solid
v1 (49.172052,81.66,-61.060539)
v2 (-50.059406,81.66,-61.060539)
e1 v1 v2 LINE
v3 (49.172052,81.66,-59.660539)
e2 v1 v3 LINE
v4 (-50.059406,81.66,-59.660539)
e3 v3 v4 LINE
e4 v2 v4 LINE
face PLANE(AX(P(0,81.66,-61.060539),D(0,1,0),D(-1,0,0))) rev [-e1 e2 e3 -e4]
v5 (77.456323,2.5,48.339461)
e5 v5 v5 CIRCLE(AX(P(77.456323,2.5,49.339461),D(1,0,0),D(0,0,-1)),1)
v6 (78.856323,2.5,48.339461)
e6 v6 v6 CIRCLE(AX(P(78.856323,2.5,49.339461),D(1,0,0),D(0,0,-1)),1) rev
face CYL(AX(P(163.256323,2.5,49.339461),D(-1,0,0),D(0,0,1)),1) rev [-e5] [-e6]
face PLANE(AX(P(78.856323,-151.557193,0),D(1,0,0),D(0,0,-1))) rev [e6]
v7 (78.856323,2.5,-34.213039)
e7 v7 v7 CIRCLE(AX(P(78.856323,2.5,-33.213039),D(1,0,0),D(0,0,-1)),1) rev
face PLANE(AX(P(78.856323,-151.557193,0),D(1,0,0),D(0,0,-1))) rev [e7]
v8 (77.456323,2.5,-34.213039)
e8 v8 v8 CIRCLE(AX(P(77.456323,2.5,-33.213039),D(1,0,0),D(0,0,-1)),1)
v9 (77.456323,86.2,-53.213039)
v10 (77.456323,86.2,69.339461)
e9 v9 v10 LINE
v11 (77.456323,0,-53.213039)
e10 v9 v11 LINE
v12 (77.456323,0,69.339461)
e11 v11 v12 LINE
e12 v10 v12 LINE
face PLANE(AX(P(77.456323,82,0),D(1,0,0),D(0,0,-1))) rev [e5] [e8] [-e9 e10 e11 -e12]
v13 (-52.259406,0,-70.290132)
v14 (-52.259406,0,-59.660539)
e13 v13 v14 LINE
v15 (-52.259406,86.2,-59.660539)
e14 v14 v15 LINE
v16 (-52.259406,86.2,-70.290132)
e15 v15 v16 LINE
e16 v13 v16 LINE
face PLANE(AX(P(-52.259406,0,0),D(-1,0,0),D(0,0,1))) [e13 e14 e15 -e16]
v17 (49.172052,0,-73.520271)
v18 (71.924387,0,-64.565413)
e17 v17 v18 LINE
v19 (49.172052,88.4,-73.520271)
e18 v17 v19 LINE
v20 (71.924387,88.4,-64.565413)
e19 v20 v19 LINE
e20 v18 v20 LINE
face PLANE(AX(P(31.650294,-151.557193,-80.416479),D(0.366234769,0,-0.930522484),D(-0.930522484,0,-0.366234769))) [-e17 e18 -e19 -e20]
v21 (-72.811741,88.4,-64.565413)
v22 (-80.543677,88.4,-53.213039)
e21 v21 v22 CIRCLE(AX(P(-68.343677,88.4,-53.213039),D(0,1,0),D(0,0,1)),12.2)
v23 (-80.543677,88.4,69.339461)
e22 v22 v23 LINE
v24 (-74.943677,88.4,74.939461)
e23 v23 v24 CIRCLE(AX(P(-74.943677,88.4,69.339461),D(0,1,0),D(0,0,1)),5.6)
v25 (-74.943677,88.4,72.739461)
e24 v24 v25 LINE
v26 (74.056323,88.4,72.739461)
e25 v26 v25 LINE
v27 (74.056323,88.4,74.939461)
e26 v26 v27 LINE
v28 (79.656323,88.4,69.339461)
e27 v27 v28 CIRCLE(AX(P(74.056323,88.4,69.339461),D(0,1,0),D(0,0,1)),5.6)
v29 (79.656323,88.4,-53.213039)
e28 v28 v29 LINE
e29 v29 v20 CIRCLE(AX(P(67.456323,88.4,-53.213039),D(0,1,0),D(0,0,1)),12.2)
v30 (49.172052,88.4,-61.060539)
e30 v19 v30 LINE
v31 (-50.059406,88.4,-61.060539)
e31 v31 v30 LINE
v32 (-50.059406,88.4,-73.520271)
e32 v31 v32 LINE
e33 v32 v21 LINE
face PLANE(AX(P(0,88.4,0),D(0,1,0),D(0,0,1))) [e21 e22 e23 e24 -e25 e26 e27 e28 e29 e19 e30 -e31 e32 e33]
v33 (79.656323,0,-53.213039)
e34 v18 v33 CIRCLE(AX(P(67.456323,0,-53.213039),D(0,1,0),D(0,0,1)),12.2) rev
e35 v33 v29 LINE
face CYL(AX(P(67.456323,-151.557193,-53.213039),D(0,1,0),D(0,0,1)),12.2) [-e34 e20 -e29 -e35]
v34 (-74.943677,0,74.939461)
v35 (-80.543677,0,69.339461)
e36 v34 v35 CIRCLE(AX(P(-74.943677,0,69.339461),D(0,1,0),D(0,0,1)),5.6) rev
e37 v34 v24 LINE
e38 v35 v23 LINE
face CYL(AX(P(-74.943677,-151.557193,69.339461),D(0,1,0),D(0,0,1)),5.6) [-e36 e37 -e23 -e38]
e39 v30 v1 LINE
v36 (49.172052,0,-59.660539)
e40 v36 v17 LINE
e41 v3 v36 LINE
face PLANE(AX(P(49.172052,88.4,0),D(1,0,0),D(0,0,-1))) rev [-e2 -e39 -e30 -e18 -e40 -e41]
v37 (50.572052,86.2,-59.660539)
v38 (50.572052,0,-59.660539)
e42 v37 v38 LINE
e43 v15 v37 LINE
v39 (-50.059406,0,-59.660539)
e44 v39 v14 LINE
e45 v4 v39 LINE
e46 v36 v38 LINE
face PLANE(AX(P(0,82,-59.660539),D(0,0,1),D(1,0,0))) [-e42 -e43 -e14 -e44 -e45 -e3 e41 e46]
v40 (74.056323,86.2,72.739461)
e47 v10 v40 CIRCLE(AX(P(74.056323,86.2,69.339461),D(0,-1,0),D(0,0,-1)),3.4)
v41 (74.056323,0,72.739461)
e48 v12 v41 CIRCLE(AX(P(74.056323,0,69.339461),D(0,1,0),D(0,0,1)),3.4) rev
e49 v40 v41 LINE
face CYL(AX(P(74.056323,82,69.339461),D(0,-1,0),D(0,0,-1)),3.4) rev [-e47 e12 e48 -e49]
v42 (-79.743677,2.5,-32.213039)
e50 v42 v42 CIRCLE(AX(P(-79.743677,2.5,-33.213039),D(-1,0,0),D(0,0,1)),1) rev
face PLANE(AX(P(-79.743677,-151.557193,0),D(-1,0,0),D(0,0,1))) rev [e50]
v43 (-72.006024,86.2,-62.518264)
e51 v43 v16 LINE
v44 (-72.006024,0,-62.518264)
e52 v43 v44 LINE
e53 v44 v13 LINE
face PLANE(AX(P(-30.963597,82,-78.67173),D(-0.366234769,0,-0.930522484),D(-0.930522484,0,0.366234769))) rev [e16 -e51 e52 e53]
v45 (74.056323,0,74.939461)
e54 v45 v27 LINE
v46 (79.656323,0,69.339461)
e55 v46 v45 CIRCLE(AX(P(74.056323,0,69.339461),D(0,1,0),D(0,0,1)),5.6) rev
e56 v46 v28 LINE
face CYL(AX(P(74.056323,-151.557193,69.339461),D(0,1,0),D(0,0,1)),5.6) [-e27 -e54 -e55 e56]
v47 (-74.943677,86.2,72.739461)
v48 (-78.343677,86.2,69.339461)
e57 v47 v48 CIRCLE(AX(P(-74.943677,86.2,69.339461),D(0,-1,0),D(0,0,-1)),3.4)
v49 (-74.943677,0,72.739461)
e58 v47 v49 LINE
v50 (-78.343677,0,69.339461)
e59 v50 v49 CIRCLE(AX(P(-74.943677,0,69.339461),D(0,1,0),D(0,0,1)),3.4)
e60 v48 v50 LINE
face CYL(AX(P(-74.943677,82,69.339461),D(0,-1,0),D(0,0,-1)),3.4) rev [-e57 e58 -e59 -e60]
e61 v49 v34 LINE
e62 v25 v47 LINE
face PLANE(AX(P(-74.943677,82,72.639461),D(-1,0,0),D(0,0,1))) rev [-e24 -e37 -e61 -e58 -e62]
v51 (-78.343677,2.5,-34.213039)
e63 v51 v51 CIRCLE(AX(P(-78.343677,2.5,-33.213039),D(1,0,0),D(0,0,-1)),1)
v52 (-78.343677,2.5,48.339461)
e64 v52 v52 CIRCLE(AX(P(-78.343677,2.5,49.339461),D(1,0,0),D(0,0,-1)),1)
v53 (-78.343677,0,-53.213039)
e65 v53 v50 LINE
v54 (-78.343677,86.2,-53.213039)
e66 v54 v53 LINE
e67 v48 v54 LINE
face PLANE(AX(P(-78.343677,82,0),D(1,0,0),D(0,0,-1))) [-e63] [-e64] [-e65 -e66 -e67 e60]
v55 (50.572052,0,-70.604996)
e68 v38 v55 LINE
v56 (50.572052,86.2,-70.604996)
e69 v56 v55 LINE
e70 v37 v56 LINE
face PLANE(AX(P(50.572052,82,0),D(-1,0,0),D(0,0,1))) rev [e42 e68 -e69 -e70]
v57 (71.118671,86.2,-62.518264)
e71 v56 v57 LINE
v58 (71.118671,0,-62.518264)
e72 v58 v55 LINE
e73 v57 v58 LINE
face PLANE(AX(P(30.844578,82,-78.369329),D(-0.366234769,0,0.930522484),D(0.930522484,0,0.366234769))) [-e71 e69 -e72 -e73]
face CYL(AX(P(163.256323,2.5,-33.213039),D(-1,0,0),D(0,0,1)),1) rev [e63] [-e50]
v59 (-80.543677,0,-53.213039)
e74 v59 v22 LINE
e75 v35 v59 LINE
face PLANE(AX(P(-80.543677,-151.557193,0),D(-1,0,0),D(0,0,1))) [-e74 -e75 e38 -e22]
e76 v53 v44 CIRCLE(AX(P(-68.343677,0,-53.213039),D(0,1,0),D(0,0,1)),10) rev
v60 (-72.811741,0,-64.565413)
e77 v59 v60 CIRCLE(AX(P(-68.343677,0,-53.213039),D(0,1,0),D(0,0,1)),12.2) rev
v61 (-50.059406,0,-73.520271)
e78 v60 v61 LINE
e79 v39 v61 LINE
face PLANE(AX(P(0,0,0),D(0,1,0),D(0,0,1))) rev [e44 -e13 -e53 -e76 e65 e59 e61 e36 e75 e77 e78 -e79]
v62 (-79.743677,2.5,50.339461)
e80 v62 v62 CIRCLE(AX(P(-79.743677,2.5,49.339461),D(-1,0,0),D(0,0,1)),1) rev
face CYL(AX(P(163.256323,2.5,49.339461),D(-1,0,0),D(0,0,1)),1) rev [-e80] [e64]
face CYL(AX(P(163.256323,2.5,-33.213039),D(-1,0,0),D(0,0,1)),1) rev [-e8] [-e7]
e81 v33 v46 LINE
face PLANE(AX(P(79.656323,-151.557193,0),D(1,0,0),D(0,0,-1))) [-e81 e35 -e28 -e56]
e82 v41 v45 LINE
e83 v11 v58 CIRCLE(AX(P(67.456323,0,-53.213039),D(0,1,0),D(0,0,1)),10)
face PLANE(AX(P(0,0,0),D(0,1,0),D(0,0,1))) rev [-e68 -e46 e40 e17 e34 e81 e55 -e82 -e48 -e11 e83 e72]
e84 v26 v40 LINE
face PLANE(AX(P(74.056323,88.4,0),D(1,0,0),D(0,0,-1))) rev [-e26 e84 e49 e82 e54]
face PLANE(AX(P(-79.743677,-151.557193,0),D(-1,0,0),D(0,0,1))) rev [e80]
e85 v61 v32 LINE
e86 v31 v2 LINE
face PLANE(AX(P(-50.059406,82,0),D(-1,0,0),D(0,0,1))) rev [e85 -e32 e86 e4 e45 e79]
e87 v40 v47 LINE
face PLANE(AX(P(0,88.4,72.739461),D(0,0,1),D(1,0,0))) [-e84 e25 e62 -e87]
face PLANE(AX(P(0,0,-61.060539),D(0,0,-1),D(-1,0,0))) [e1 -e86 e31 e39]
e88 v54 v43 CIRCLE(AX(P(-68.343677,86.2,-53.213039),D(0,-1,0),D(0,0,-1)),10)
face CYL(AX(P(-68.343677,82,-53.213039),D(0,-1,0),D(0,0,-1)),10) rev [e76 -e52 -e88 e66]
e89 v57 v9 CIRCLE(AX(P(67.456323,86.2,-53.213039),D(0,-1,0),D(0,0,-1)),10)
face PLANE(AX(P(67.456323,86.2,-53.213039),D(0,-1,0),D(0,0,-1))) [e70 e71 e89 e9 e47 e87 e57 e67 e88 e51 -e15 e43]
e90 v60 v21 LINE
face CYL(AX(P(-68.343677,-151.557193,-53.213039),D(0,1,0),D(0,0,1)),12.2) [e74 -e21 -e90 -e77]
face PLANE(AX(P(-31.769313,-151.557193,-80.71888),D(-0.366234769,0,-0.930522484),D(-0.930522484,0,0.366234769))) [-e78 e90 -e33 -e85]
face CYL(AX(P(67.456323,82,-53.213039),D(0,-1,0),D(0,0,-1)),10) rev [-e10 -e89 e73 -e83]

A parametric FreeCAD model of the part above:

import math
import FreeCAD as App
import Part
import Sketcher


def add_polygon(sketch, points):
    """Adds a closed chain of lines whose ends are joined by coincident constraints."""
    first, n = sketch.GeometryCount, len(points)
    for a, b in zip(points, points[1:] + points[:1]):
        sketch.addGeometry(Part.LineSegment(App.Vector(*a, 0), App.Vector(*b, 0)), False)
    for i in range(n):
        sketch.addConstraint(Sketcher.Constraint("Coincident", first + i, 2, first + (i + 1) % n, 1))

doc = App.newDocument("Part")
body = doc.addObject("PartDesign::Body", "Body")
body.AllowCompound = True

# Sketch on XZ plane
sketch1 = body.newObject("Sketcher::SketchObject", "Sketch")
sketch1.AttachmentSupport = (doc.getObject("XZ_Plane"), [""])
sketch1.MapMode = "FlatFace"
sketch1.addGeometry([
    Part.ArcOfCircle(Part.Circle(App.Vector(74.1, 69.3, 0), App.Vector(0, 0, 1), 4.8), math.radians(0), math.radians(90)),  # 0
    Part.LineSegment(App.Vector(78.9, 69.3, 0), App.Vector(78.9, -53.2, 0)),  # 1
    Part.ArcOfCircle(Part.Circle(App.Vector(67.5, -53.2, 0), App.Vector(0, 0, 1), 11.4), math.radians(-69), math.radians(0)),  # 2
    Part.LineSegment(App.Vector(71.6, -63.8, 0), App.Vector(49.2, -72.7, 0)),  # 3
    Part.LineSegment(App.Vector(49.2, -72.7, 0), App.Vector(49.2, -59.7, 0)),  # 4
    Part.LineSegment(App.Vector(49.2, -59.7, 0), App.Vector(50.6, -59.7, 0)),  # 5
    Part.LineSegment(App.Vector(50.6, -59.7, 0), App.Vector(50.6, -70.6, 0)),  # 6
    Part.LineSegment(App.Vector(50.6, -70.6, 0), App.Vector(71.1, -62.5, 0)),  # 7
    Part.ArcOfCircle(Part.Circle(App.Vector(67.5, -53.2, 0), App.Vector(0, 0, 1), 10), math.radians(-69), math.radians(0)),  # 8
    Part.LineSegment(App.Vector(77.5, -53.2, 0), App.Vector(77.5, 69.3, 0)),  # 9
    Part.ArcOfCircle(Part.Circle(App.Vector(74.1, 69.3, 0), App.Vector(0, 0, 1), 3.4), math.radians(0), math.radians(90)),  # 10
    Part.LineSegment(App.Vector(74.1, 72.7, 0), App.Vector(-74.9, 72.7, 0)),  # 11
    Part.ArcOfCircle(Part.Circle(App.Vector(-74.9, 69.3, 0), App.Vector(0, 0, 1), 3.4), math.radians(90), math.radians(180)),  # 12
    Part.LineSegment(App.Vector(-78.3, 69.3, 0), App.Vector(-78.3, -53.2, 0)),  # 13
    Part.ArcOfCircle(Part.Circle(App.Vector(-68.3, -53.2, 0), App.Vector(0, 0, 1), 10), math.radians(-180), math.radians(-111)),  # 14
    Part.LineSegment(App.Vector(-72, -62.5, 0), App.Vector(-51.5, -70.6, 0)),  # 15
    Part.LineSegment(App.Vector(-51.5, -70.6, 0), App.Vector(-51.5, -59.7, 0)),  # 16
    Part.LineSegment(App.Vector(-51.5, -59.7, 0), App.Vector(-50.1, -59.7, 0)),  # 17
    Part.LineSegment(App.Vector(-50.1, -59.7, 0), App.Vector(-50.1, -72.7, 0)),  # 18
    Part.LineSegment(App.Vector(-50.1, -72.7, 0), App.Vector(-72.5, -63.8, 0)),  # 19
    Part.ArcOfCircle(Part.Circle(App.Vector(-68.3, -53.2, 0), App.Vector(0, 0, 1), 11.4), math.radians(-180), math.radians(-111)),  # 20
    Part.LineSegment(App.Vector(-79.7, -53.2, 0), App.Vector(-79.7, 69.3, 0)),  # 21
    Part.ArcOfCircle(Part.Circle(App.Vector(-74.9, 69.3, 0), App.Vector(0, 0, 1), 4.8), math.radians(90), math.radians(180)),  # 22
    Part.LineSegment(App.Vector(-74.9, 74.1, 0), App.Vector(74.1, 74.1, 0)),  # 23
], False)
sketch1.addConstraint([
    Sketcher.Constraint("Tangent", 0, 1, 1, 1),
    Sketcher.Constraint("Tangent", 1, 2, 2, 2),
    Sketcher.Constraint("Tangent", 2, 1, 3, 1),
    Sketcher.Constraint("Coincident", 3, 2, 4, 1),
    Sketcher.Constraint("Coincident", 4, 2, 5, 1),
    Sketcher.Constraint("Coincident", 5, 2, 6, 1),
    Sketcher.Constraint("Coincident", 6, 2, 7, 1),
    Sketcher.Constraint("Tangent", 7, 2, 8, 1),
    Sketcher.Constraint("Tangent", 8, 2, 9, 1),
    Sketcher.Constraint("Tangent", 9, 2, 10, 1),
    Sketcher.Constraint("Tangent", 10, 2, 11, 1),
    Sketcher.Constraint("Tangent", 11, 2, 12, 1),
    Sketcher.Constraint("Tangent", 12, 2, 13, 1),
    Sketcher.Constraint("Tangent", 13, 2, 14, 1),
    Sketcher.Constraint("Tangent", 14, 2, 15, 1),
    Sketcher.Constraint("Coincident", 15, 2, 16, 1),
    Sketcher.Constraint("Coincident", 16, 2, 17, 1),
    Sketcher.Constraint("Coincident", 17, 2, 18, 1),
    Sketcher.Constraint("Coincident", 18, 2, 19, 1),
    Sketcher.Constraint("Tangent", 19, 2, 20, 2),
    Sketcher.Constraint("Tangent", 20, 1, 21, 1),
    Sketcher.Constraint("Tangent", 21, 2, 22, 2),
    Sketcher.Constraint("Tangent", 22, 1, 23, 1),
    Sketcher.Constraint("Tangent", 23, 2, 0, 2),
    Sketcher.Constraint("Vertical", 1),
    Sketcher.Constraint("Vertical", 4),
    Sketcher.Constraint("Horizontal", 5),
    Sketcher.Constraint("Vertical", 6),
    Sketcher.Constraint("Vertical", 9),
    Sketcher.Constraint("Horizontal", 11),
    Sketcher.Constraint("Vertical", 13),
    Sketcher.Constraint("Vertical", 16),
    Sketcher.Constraint("Horizontal", 17),
    Sketcher.Constraint("Vertical", 18),
    Sketcher.Constraint("Vertical", 21),
    Sketcher.Constraint("Horizontal", 23),
    Sketcher.Constraint("Coincident", 8, 3, 2, 3),
    Sketcher.Constraint("Coincident", 10, 3, 0, 3),
    Sketcher.Constraint("Coincident", 20, 3, 14, 3),
    Sketcher.Constraint("Coincident", 22, 3, 12, 3),
    Sketcher.Constraint("Equal", 10, 12),
    Sketcher.Constraint("Equal", 8, 14),
    Sketcher.Constraint("Parallel", 3, 7),
    Sketcher.Constraint("Parallel", 15, 19),
    Sketcher.Constraint("Horizontal", 8, 3, 14, 3),
    Sketcher.Constraint("Horizontal", 7, 2, 14, 2),
    Sketcher.Constraint("Horizontal", 6, 2, 15, 2),
    Sketcher.Constraint("Horizontal", 5, 2, 16, 2),
    Sketcher.Constraint("Horizontal", 3, 2, 18, 2),
    Sketcher.Constraint("Radius", 8, 10.0),
    Sketcher.Constraint("Radius", 0, 4.8),
    Sketcher.Constraint("Radius", 2, 11.4),
    Sketcher.Constraint("DistanceX", 11, 2, 11, 1, 149.0),
    Sketcher.Constraint("DistanceY", 4, 1, 4, 2, 13.0),
    Sketcher.Constraint("DistanceX", 5, 1, 5, 2, 1.4),
    Sketcher.Constraint("DistanceY", 1, 2, 1, 1, 122.5525),
    Sketcher.Constraint("DistanceY", 6, 2, 2, 1, 6.784001),
    Sketcher.Constraint("DistanceX", -1, 1, 2, 1, 71.6314),
    Sketcher.Constraint("DistanceY", 3, 2, 8, 3, 19.4475),
    Sketcher.Constraint("DistanceY", -1, 1, 0, 3, 69.339461),
])
pad1 = body.newObject("PartDesign::Pad", "Pad")
pad1.Profile = sketch1
pad1.Length = 82
pad1.Reversed = True

# Sketch on XZ plane
sketch2 = body.newObject("Sketcher::SketchObject", "Sketch001")
sketch2.AttachmentSupport = (doc.getObject("XZ_Plane"), [""])
sketch2.MapMode = "FlatFace"
sketch2.AttachmentOffset = App.Placement(App.Vector(0, 0, -82), App.Rotation())
sketch2.addGeometry([
    Part.LineSegment(App.Vector(50.6, -70.6, 0), App.Vector(50.6, -59.7, 0)),  # 0
    Part.LineSegment(App.Vector(50.6, -59.7, 0), App.Vector(-51.5, -59.7, 0)),  # 1
    Part.LineSegment(App.Vector(-51.5, -59.7, 0), App.Vector(-51.5, -70.6, 0)),  # 2
    Part.LineSegment(App.Vector(-51.5, -70.6, 0), App.Vector(-72, -62.5, 0)),  # 3
    Part.ArcOfCircle(Part.Circle(App.Vector(-68.3, -53.2, 0), App.Vector(0, 0, 1), 10), math.radians(-180), math.radians(-111)),  # 4
    Part.LineSegment(App.Vector(-78.3, -53.2, 0), App.Vector(-78.3, 69.3, 0)),  # 5
    Part.ArcOfCircle(Part.Circle(App.Vector(-74.9, 69.3, 0), App.Vector(0, 0, 1), 3.4), math.radians(90), math.radians(180)),  # 6
    Part.LineSegment(App.Vector(-74.9, 72.7, 0), App.Vector(74.1, 72.7, 0)),  # 7
    Part.ArcOfCircle(Part.Circle(App.Vector(74.1, 69.3, 0), App.Vector(0, 0, 1), 3.4), math.radians(0), math.radians(90)),  # 8
    Part.LineSegment(App.Vector(77.5, 69.3, 0), App.Vector(77.5, -53.2, 0)),  # 9
    Part.ArcOfCircle(Part.Circle(App.Vector(67.5, -53.2, 0), App.Vector(0, 0, 1), 10), math.radians(-69), math.radians(0)),  # 10
    Part.LineSegment(App.Vector(71.1, -62.5, 0), App.Vector(50.6, -70.6, 0)),  # 11
], False)
sketch2.addConstraint([
    Sketcher.Constraint("Coincident", 0, 2, 1, 1),
    Sketcher.Constraint("Coincident", 1, 2, 2, 1),
    Sketcher.Constraint("Coincident", 2, 2, 3, 1),
    Sketcher.Constraint("Tangent", 3, 2, 4, 2),
    Sketcher.Constraint("Tangent", 4, 1, 5, 1),
    Sketcher.Constraint("Tangent", 5, 2, 6, 2),
    Sketcher.Constraint("Tangent", 6, 1, 7, 1),
    Sketcher.Constraint("Tangent", 7, 2, 8, 2),
    Sketcher.Constraint("Tangent", 8, 1, 9, 1),
    Sketcher.Constraint("Tangent", 9, 2, 10, 2),
    Sketcher.Constraint("Tangent", 10, 1, 11, 1),
    Sketcher.Constraint("Coincident", 11, 2, 0, 1),
    Sketcher.Constraint("Vertical", 0),
    Sketcher.Constraint("Horizontal", 1),
    Sketcher.Constraint("Vertical", 2),
    Sketcher.Constraint("Vertical", 5),
    Sketcher.Constraint("Horizontal", 7),
    Sketcher.Constraint("Vertical", 9),
    Sketcher.Constraint("Equal", 6, 8),
    Sketcher.Constraint("Equal", 4, 10),
    Sketcher.Constraint("Horizontal", 4, 3, 10, 3),
    Sketcher.Constraint("Horizontal", 3, 2, 10, 1),
    Sketcher.Constraint("Horizontal", 2, 2, 11, 2),
    Sketcher.Constraint("Radius", 4, 10.0),
    Sketcher.Constraint("Radius", 6, 3.4),
    Sketcher.Constraint("DistanceX", 7, 1, 7, 2, 149.0),
    Sketcher.Constraint("DistanceY", 0, 2, 8, 3, 129.0),
    Sketcher.Constraint("DistanceY", 5, 1, 5, 2, 122.5525),
    Sketcher.Constraint("DistanceX", 1, 2, 1, 1, 102.031458),
    Sketcher.Constraint("DistanceY", 0, 1, 0, 2, 10.944457),
    Sketcher.Constraint("DistanceY", 4, 3, -1, 1, 53.213039),
    Sketcher.Constraint("DistanceX", -1, 1, 0, 2, 50.572052),
])
pad2 = body.newObject("PartDesign::Pad", "Pad001")
pad2.Profile = sketch2
pad2.Length = 1.5

# Sketch on XY plane
sketch3 = body.newObject("Sketcher::SketchObject", "Sketch002")
sketch3.AttachmentSupport = (doc.getObject("XY_Plane"), [""])
sketch3.MapMode = "FlatFace"
sketch3.AttachmentOffset = App.Placement(App.Vector(0, 0, 74.139461), App.Rotation())
add_polygon(sketch3, [(-75, 82), (-75, 0), (74, 0), (74, 82)])  # lines 0-3
sketch3.addConstraint([
    Sketcher.Constraint("Vertical", 0),
    Sketcher.Constraint("Horizontal", 1),
    Sketcher.Constraint("Vertical", 2),
    Sketcher.Constraint("Horizontal", 3),
    Sketcher.Constraint("PointOnObject", 0, 2, -1),
    Sketcher.Constraint("DistanceX", 1, 1, 1, 2, 149.0),
    Sketcher.Constraint("DistanceY", 0, 2, 0, 1, 82.0),
    Sketcher.Constraint("DistanceX", 0, 2, -1, 1, 74.943677),
])
pocket1 = body.newObject("PartDesign::Pocket", "Pocket")
pocket1.Profile = sketch3
pocket1.Length = 1.5

# Sketch on XZ plane
sketch4 = body.newObject("Sketcher::SketchObject", "Sketch003")
sketch4.AttachmentSupport = (doc.getObject("XZ_Plane"), [""])
sketch4.MapMode = "FlatFace"
sketch4.AttachmentOffset = App.Placement(App.Vector(0, 0, -82), App.Rotation())
add_polygon(sketch4, [(-50.06, -59.66), (-50.06, -59.46), (49.17, -59.46), (49.17, -59.66)])  # lines 0-3
sketch4.addConstraint([
    Sketcher.Constraint("Vertical", 0),
    Sketcher.Constraint("Horizontal", 1),
    Sketcher.Constraint("Vertical", 2),
    Sketcher.Constraint("Horizontal", 3),
    Sketcher.Constraint("DistanceY", 0, 1, 0, 2, 0.2),
    Sketcher.Constraint("DistanceX", 1, 1, 1, 2, 99.231458),
    Sketcher.Constraint("DistanceY", 0, 2, -1, 1, 59.460539),
    Sketcher.Constraint("DistanceX", -1, 1, 1, 2, 49.172052),
])
pocket2 = body.newObject("PartDesign::Pocket", "Pocket001")
pocket2.Profile = sketch4
pocket2.Length = 18
pocket2.Reversed = True

# Sketch on YZ plane
sketch5 = body.newObject("Sketcher::SketchObject", "Sketch004")
sketch5.AttachmentSupport = (doc.getObject("YZ_Plane"), [""])
sketch5.MapMode = "FlatFace"
sketch5.AttachmentOffset = App.Placement(App.Vector(0, 0, -79.743677), App.Rotation())
sketch5.addGeometry([
    Part.Circle(App.Vector(2.5, -33.2, 0), App.Vector(0, 0, 1), 1),
    Part.Circle(App.Vector(2.5, 49.3, 0), App.Vector(0, 0, 1), 1),
], False)
sketch5.addConstraint([
    Sketcher.Constraint("Equal", 0, 1),
    Sketcher.Constraint("Vertical", 0, 3, 1, 3),
    Sketcher.Constraint("Diameter", 0, 2.0),
    Sketcher.Constraint("DistanceX", -1, 1, 0, 3, 2.5),
    Sketcher.Constraint("DistanceY", 0, 3, 1, 3, 82.5525),
    Sketcher.Constraint("DistanceY", 0, 3, -1, 1, 33.213039),
])
pocket3 = body.newObject("PartDesign::Pocket", "Pocket002")
pocket3.Profile = sketch5
pocket3.Length = 243
pocket3.Reversed = True

# Sketch on XZ plane
sketch6 = body.newObject("Sketcher::SketchObject", "Sketch005")
sketch6.AttachmentSupport = (doc.getObject("XZ_Plane"), [""])
sketch6.MapMode = "FlatFace"
sketch6.AttachmentOffset = App.Placement(App.Vector(0, 0, -80.5), App.Rotation())
sketch6.addGeometry([
    Part.LineSegment(App.Vector(-50.06, -59.46, 0), App.Vector(49.17, -59.46, 0)),  # 0
    Part.LineSegment(App.Vector(49.17, -59.46, 0), App.Vector(49.17, -59.66, 0)),  # 1
    Part.LineSegment(App.Vector(49.17, -59.66, 0), App.Vector(50.57, -59.66, 0)),  # 2
    Part.LineSegment(App.Vector(50.57, -59.66, 0), App.Vector(50.57, -70.6, 0)),  # 3
    Part.LineSegment(App.Vector(50.57, -70.6, 0), App.Vector(71.12, -62.52, 0)),  # 4
    Part.ArcOfCircle(Part.Circle(App.Vector(67.46, -53.21, 0), App.Vector(0, 0, 1), 10), math.radians(-69), math.radians(0)),  # 5
    Part.LineSegment(App.Vector(77.46, -53.21, 0), App.Vector(77.46, 69.34, 0)),  # 6
    Part.ArcOfCircle(Part.Circle(App.Vector(74.06, 69.34, 0), App.Vector(0, 0, 1), 3.4), math.radians(0), math.radians(90)),  # 7
    Part.LineSegment(App.Vector(74.06, 72.74, 0), App.Vector(74.06, 72.64, 0)),  # 8
    Part.LineSegment(App.Vector(74.06, 72.64, 0), App.Vector(-74.94, 72.64, 0)),  # 9
    Part.LineSegment(App.Vector(-74.94, 72.64, 0), App.Vector(-74.94, 72.74, 0)),  # 10
    Part.ArcOfCircle(Part.Circle(App.Vector(-74.94, 69.34, 0), App.Vector(0, 0, 1), 3.4), math.radians(90), math.radians(180)),  # 11
    Part.LineSegment(App.Vector(-78.34, 69.34, 0), App.Vector(-78.34, -53.21, 0)),  # 12
    Part.ArcOfCircle(Part.Circle(App.Vector(-68.34, -53.21, 0), App.Vector(0, 0, 1), 10), math.radians(-180), math.radians(-111)),  # 13
    Part.LineSegment(App.Vector(-72.01, -62.52, 0), App.Vector(-51.46, -70.6, 0)),  # 14
    Part.LineSegment(App.Vector(-51.46, -70.6, 0), App.Vector(-51.46, -59.66, 0)),  # 15
    Part.LineSegment(App.Vector(-51.46, -59.66, 0), App.Vector(-50.06, -59.66, 0)),  # 16
    Part.LineSegment(App.Vector(-50.06, -59.66, 0), App.Vector(-50.06, -59.46, 0)),  # 17
], False)
sketch6.addConstraint([
    Sketcher.Constraint("Coincident", 0, 2, 1, 1),
    Sketcher.Constraint("Coincident", 1, 2, 2, 1),
    Sketcher.Constraint("Coincident", 2, 2, 3, 1),
    Sketcher.Constraint("Coincident", 3, 2, 4, 1),
    Sketcher.Constraint("Tangent", 4, 2, 5, 1),
    Sketcher.Constraint("Tangent", 5, 2, 6, 1),
    Sketcher.Constraint("Tangent", 6, 2, 7, 1),
    Sketcher.Constraint("Coincident", 7, 2, 8, 1),
    Sketcher.Constraint("Coincident", 8, 2, 9, 1),
    Sketcher.Constraint("Coincident", 9, 2, 10, 1),
    Sketcher.Constraint("Coincident", 10, 2, 11, 1),
    Sketcher.Constraint("Tangent", 11, 2, 12, 1),
    Sketcher.Constraint("Tangent", 12, 2, 13, 1),
    Sketcher.Constraint("Tangent", 13, 2, 14, 1),
    Sketcher.Constraint("Coincident", 14, 2, 15, 1),
    Sketcher.Constraint("Coincident", 15, 2, 16, 1),
    Sketcher.Constraint("Coincident", 16, 2, 17, 1),
    Sketcher.Constraint("Coincident", 17, 2, 0, 1),
    Sketcher.Constraint("Horizontal", 0),
    Sketcher.Constraint("Vertical", 1),
    Sketcher.Constraint("Horizontal", 2),
    Sketcher.Constraint("Vertical", 3),
    Sketcher.Constraint("Vertical", 6),
    Sketcher.Constraint("Vertical", 8),
    Sketcher.Constraint("Horizontal", 9),
    Sketcher.Constraint("Vertical", 10),
    Sketcher.Constraint("Vertical", 12),
    Sketcher.Constraint("Vertical", 15),
    Sketcher.Constraint("Horizontal", 16),
    Sketcher.Constraint("Vertical", 17),
    Sketcher.Constraint("Equal", 7, 11),
    Sketcher.Constraint("Equal", 5, 13),
    Sketcher.Constraint("Horizontal", 7, 3, 11, 3),
    Sketcher.Constraint("Horizontal", 5, 3, 13, 3),
    Sketcher.Constraint("Horizontal", 4, 2, 13, 2),
    Sketcher.Constraint("Horizontal", 3, 2, 14, 2),
    Sketcher.Constraint("Horizontal", 2, 2, 15, 2),
    Sketcher.Constraint("Vertical", 11, 3, 9, 2),
    Sketcher.Constraint("Equal", 2, 16),
    Sketcher.Constraint("Radius", 5, 10.0),
    Sketcher.Constraint("Radius", 7, 3.4),
    Sketcher.Constraint("DistanceX", 9, 2, 9, 1, 149.0),
    Sketcher.Constraint("DistanceX", 2, 1, 2, 2, 1.4),
    Sketcher.Constraint("DistanceY", 1, 2, 1, 1, 0.2),
    Sketcher.Constraint("DistanceY", 8, 2, 8, 1, 0.1),
    Sketcher.Constraint("DistanceX", 11, 3, 7, 3, 149.0),
    Sketcher.Constraint("DistanceY", 1, 2, 7, 3, 129.0),
    Sketcher.Constraint("DistanceY", 6, 1, 6, 2, 122.5525),
    Sketcher.Constraint("DistanceX", 0, 1, 0, 2, 99.231458),
    Sketcher.Constraint("DistanceY", 3, 2, 3, 1, 10.944457),
    Sketcher.Constraint("DistanceY", 5, 3, -1, 1, 53.213039),
    Sketcher.Constraint("DistanceX", -1, 1, 0, 2, 49.172052),
])
pocket4 = body.newObject("PartDesign::Pocket", "Pocket003")
pocket4.Profile = sketch6
pocket4.Length = 16.4

# Sketch on XZ plane
sketch7 = body.newObject("Sketcher::SketchObject", "Sketch006")
sketch7.AttachmentSupport = (doc.getObject("XZ_Plane"), [""])
sketch7.MapMode = "FlatFace"
sketch7.AttachmentOffset = App.Placement(App.Vector(0, 0, -82), App.Rotation())
sketch7.addGeometry([
    Part.LineSegment(App.Vector(74.1, 72.7, 0), App.Vector(74.1, 74.1, 0)),  # 0
    Part.ArcOfCircle(Part.Circle(App.Vector(74.1, 69.3, 0), App.Vector(0, 0, 1), 4.8), math.radians(0), math.radians(90)),  # 1
    Part.LineSegment(App.Vector(78.9, 69.3, 0), App.Vector(78.9, -53.2, 0)),  # 2
    Part.ArcOfCircle(Part.Circle(App.Vector(67.5, -53.2, 0), App.Vector(0, 0, 1), 11.4), math.radians(-69), math.radians(0)),  # 3
    Part.LineSegment(App.Vector(71.6, -63.8, 0), App.Vector(49.2, -72.7, 0)),  # 4
    Part.LineSegment(App.Vector(49.2, -72.7, 0), App.Vector(49.2, -59.7, 0)),  # 5
    Part.LineSegment(App.Vector(49.2, -59.7, 0), App.Vector(50.6, -59.7, 0)),  # 6
    Part.LineSegment(App.Vector(50.6, -59.7, 0), App.Vector(50.6, -70.6, 0)),  # 7
    Part.LineSegment(App.Vector(50.6, -70.6, 0), App.Vector(71.1, -62.5, 0)),  # 8
    Part.ArcOfCircle(Part.Circle(App.Vector(67.5, -53.2, 0), App.Vector(0, 0, 1), 10), math.radians(-69), math.radians(0)),  # 9
    Part.LineSegment(App.Vector(77.5, -53.2, 0), App.Vector(77.5, 69.3, 0)),  # 10
    Part.ArcOfCircle(Part.Circle(App.Vector(74.1, 69.3, 0), App.Vector(0, 0, 1), 3.4), math.radians(0), math.radians(90)),  # 11
    Part.LineSegment(App.Vector(-51.5, -59.7, 0), App.Vector(-50.1, -59.7, 0)),  # 12
    Part.LineSegment(App.Vector(-50.1, -59.7, 0), App.Vector(-50.1, -72.7, 0)),  # 13
    Part.LineSegment(App.Vector(-50.1, -72.7, 0), App.Vector(-72.5, -63.8, 0)),  # 14
    Part.ArcOfCircle(Part.Circle(App.Vector(-68.3, -53.2, 0), App.Vector(0, 0, 1), 11.4), math.radians(-180), math.radians(-111)),  # 15
    Part.LineSegment(App.Vector(-79.7, -53.2, 0), App.Vector(-79.7, 69.3, 0)),  # 16
    Part.ArcOfCircle(Part.Circle(App.Vector(-74.9, 69.3, 0), App.Vector(0, 0, 1), 4.8), math.radians(90), math.radians(180)),  # 17
    Part.LineSegment(App.Vector(-74.9, 74.1, 0), App.Vector(-74.9, 72.7, 0)),  # 18
    Part.ArcOfCircle(Part.Circle(App.Vector(-74.9, 69.3, 0), App.Vector(0, 0, 1), 3.4), math.radians(90), math.radians(180)),  # 19
    Part.LineSegment(App.Vector(-78.3, 69.3, 0), App.Vector(-78.3, -53.2, 0)),  # 20
    Part.ArcOfCircle(Part.Circle(App.Vector(-68.3, -53.2, 0), App.Vector(0, 0, 1), 10), math.radians(-180), math.radians(-111)),  # 21
    Part.LineSegment(App.Vector(-72, -62.5, 0), App.Vector(-51.5, -70.6, 0)),  # 22
    Part.LineSegment(App.Vector(-51.5, -70.6, 0), App.Vector(-51.5, -59.7, 0)),  # 23
], False)
sketch7.addConstraint([
    Sketcher.Constraint("Coincident", 0, 2, 1, 2),
    Sketcher.Constraint("Tangent", 1, 1, 2, 1),
    Sketcher.Constraint("Tangent", 2, 2, 3, 2),
    Sketcher.Constraint("Tangent", 3, 1, 4, 1),
    Sketcher.Constraint("Coincident", 4, 2, 5, 1),
    Sketcher.Constraint("Coincident", 5, 2, 6, 1),
    Sketcher.Constraint("Coincident", 6, 2, 7, 1),
    Sketcher.Constraint("Coincident", 7, 2, 8, 1),
    Sketcher.Constraint("Tangent", 8, 2, 9, 1),
    Sketcher.Constraint("Tangent", 9, 2, 10, 1),
    Sketcher.Constraint("Tangent", 10, 2, 11, 1),
    Sketcher.Constraint("Coincident", 11, 2, 0, 1),
    Sketcher.Constraint("Coincident", 12, 2, 13, 1),
    Sketcher.Constraint("Coincident", 13, 2, 14, 1),
    Sketcher.Constraint("Tangent", 14, 2, 15, 2),
    Sketcher.Constraint("Tangent", 15, 1, 16, 1),
    Sketcher.Constraint("Tangent", 16, 2, 17, 2),
    Sketcher.Constraint("Coincident", 17, 1, 18, 1),
    Sketcher.Constraint("Coincident", 18, 2, 19, 1),
    Sketcher.Constraint("Tangent", 19, 2, 20, 1),
    Sketcher.Constraint("Tangent", 20, 2, 21, 1),
    Sketcher.Constraint("Tangent", 21, 2, 22, 1),
    Sketcher.Constraint("Coincident", 22, 2, 23, 1),
    Sketcher.Constraint("Coincident", 23, 2, 12, 1),
    Sketcher.Constraint("Vertical", 0),
    Sketcher.Constraint("Vertical", 2),
    Sketcher.Constraint("Vertical", 5),
    Sketcher.Constraint("Horizontal", 6),
    Sketcher.Constraint("Vertical", 7),
    Sketcher.Constraint("Vertical", 10),
    Sketcher.Constraint("Horizontal", 12),
    Sketcher.Constraint("Vertical", 13),
    Sketcher.Constraint("Vertical", 16),
    Sketcher.Constraint("Vertical", 18),
    Sketcher.Constraint("Vertical", 20),
    Sketcher.Constraint("Vertical", 23),
    Sketcher.Constraint("Coincident", 9, 3, 3, 3),
    Sketcher.Constraint("Coincident", 11, 3, 1, 3),
    Sketcher.Constraint("Coincident", 19, 3, 17, 3),
    Sketcher.Constraint("Coincident", 21, 3, 15, 3),
    Sketcher.Constraint("Equal", 3, 15),
    Sketcher.Constraint("Equal", 1, 17),
    Sketcher.Constraint("Equal", 11, 19),
    Sketcher.Constraint("Parallel", 4, 8),
    Sketcher.Constraint("Parallel", 14, 22),
    Sketcher.Constraint("Horizontal", 9, 3, 15, 3),
    Sketcher.Constraint("Horizontal", 11, 3, 17, 3),
    Sketcher.Constraint("Horizontal", 6, 2, 12, 2),
    Sketcher.Constraint("Horizontal", 4, 2, 13, 2),
    Sketcher.Constraint("Horizontal", 3, 1, 14, 2),
    Sketcher.Constraint("Horizontal", 7, 2, 22, 2),
    Sketcher.Constraint("Vertical", 11, 3, 0, 2),
    Sketcher.Constraint("Vertical", 19, 3, 17, 1),
    Sketcher.Constraint("Equal", 12, 0),
    Sketcher.Constraint("Radius", 9, 10.0),
    Sketcher.Constraint("Radius", 1, 4.8),
    Sketcher.Constraint("Radius", 3, 11.4),
    Sketcher.Constraint("DistanceY", 5, 1, 5, 2, 13.0),
    Sketcher.Constraint("DistanceX", 17, 3, 1, 3, 149.0),
    Sketcher.Constraint("DistanceY", 2, 2, 2, 1, 122.5525),
    Sketcher.Constraint("DistanceY", 7, 2, 3, 1, 6.784001),
    Sketcher.Constraint("DistanceX", -1, 1, 3, 1, 71.6314),
    Sketcher.Constraint("DistanceY", 4, 2, 9, 3, 19.4475),
    Sketcher.Constraint("DistanceY", -1, 1, 1, 3, 69.339461),
])
pad3 = body.newObject("PartDesign::Pad", "Pad002")
pad3.Profile = sketch7
pad3.Length = 5
pad3.Reversed = True

# Sketch on XZ plane
sketch8 = body.newObject("Sketcher::SketchObject", "Sketch007")
sketch8.AttachmentSupport = (doc.getObject("XZ_Plane"), [""])
sketch8.MapMode = "FlatFace"
sketch8.AttachmentOffset = App.Placement(App.Vector(0, 0, -87), App.Rotation())
sketch8.addGeometry([
    Part.LineSegment(App.Vector(-74.9, 72.7, 0), App.Vector(74.1, 72.7, 0)),  # 0
    Part.LineSegment(App.Vector(74.1, 72.7, 0), App.Vector(74.1, 74.1, 0)),  # 1
    Part.ArcOfCircle(Part.Circle(App.Vector(74.1, 69.3, 0), App.Vector(0, 0, 1), 4.8), math.radians(0), math.radians(90)),  # 2
    Part.LineSegment(App.Vector(78.9, 69.3, 0), App.Vector(78.9, -53.2, 0)),  # 3
    Part.ArcOfCircle(Part.Circle(App.Vector(67.5, -53.2, 0), App.Vector(0, 0, 1), 11.4), math.radians(-69), math.radians(0)),  # 4
    Part.LineSegment(App.Vector(71.6, -63.8, 0), App.Vector(49.2, -72.7, 0)),  # 5
    Part.LineSegment(App.Vector(49.2, -72.7, 0), App.Vector(49.2, -59.7, 0)),  # 6
    Part.LineSegment(App.Vector(49.2, -59.7, 0), App.Vector(-50.1, -59.7, 0)),  # 7
    Part.LineSegment(App.Vector(-50.1, -59.7, 0), App.Vector(-50.1, -72.7, 0)),  # 8
    Part.LineSegment(App.Vector(-50.1, -72.7, 0), App.Vector(-72.5, -63.8, 0)),  # 9
    Part.ArcOfCircle(Part.Circle(App.Vector(-68.3, -53.2, 0), App.Vector(0, 0, 1), 11.4), math.radians(-180), math.radians(-111)),  # 10
    Part.LineSegment(App.Vector(-79.7, -53.2, 0), App.Vector(-79.7, 69.3, 0)),  # 11
    Part.ArcOfCircle(Part.Circle(App.Vector(-74.9, 69.3, 0), App.Vector(0, 0, 1), 4.8), math.radians(90), math.radians(180)),  # 12
    Part.LineSegment(App.Vector(-74.9, 74.1, 0), App.Vector(-74.9, 72.7, 0)),  # 13
], False)
sketch8.addConstraint([
    Sketcher.Constraint("Coincident", 0, 2, 1, 1),
    Sketcher.Constraint("Coincident", 1, 2, 2, 2),
    Sketcher.Constraint("Tangent", 2, 1, 3, 1),
    Sketcher.Constraint("Tangent", 3, 2, 4, 2),
    Sketcher.Constraint("Tangent", 4, 1, 5, 1),
    Sketcher.Constraint("Coincident", 5, 2, 6, 1),
    Sketcher.Constraint("Coincident", 6, 2, 7, 1),
    Sketcher.Constraint("Coincident", 7, 2, 8, 1),
    Sketcher.Constraint("Coincident", 8, 2, 9, 1),
    Sketcher.Constraint("Tangent", 9, 2, 10, 2),
    Sketcher.Constraint("Tangent", 10, 1, 11, 1),
    Sketcher.Constraint("Tangent", 11, 2, 12, 2),
    Sketcher.Constraint("Coincident", 12, 1, 13, 1),
    Sketcher.Constraint("Coincident", 13, 2, 0, 1),
    Sketcher.Constraint("Horizontal", 0),
    Sketcher.Constraint("Vertical", 1),
    Sketcher.Constraint("Vertical", 3),
    Sketcher.Constraint("Vertical", 6),
    Sketcher.Constraint("Horizontal", 7),
    Sketcher.Constraint("Vertical", 8),
    Sketcher.Constraint("Vertical", 11),
    Sketcher.Constraint("Vertical", 13),
    Sketcher.Constraint("Equal", 4, 10),
    Sketcher.Constraint("Equal", 2, 12),
    Sketcher.Constraint("Horizontal", 4, 3, 10, 3),
    Sketcher.Constraint("Horizontal", 2, 3, 12, 3),
    Sketcher.Constraint("Horizontal", 5, 2, 8, 2),
    Sketcher.Constraint("Horizontal", 4, 1, 9, 2),
    Sketcher.Constraint("Vertical", 2, 3, 0, 2),
    Sketcher.Constraint("Radius", 2, 4.8),
    Sketcher.Constraint("Radius", 4, 11.4),
    Sketcher.Constraint("DistanceX", 0, 1, 0, 2, 149.0),
    Sketcher.Constraint("DistanceY", 6, 1, 6, 2, 13.0),
    Sketcher.Constraint("DistanceY", 1, 1, 1, 2, 1.4),
    Sketcher.Constraint("DistanceX", 12, 3, 2, 3, 149.0),
    Sketcher.Constraint("DistanceY", 5, 2, 2, 3, 142.0),
    Sketcher.Constraint("DistanceY", 3, 2, 3, 1, 122.5525),
    Sketcher.Constraint("DistanceX", -1, 1, 4, 1, 71.6314),
    Sketcher.Constraint("DistanceX", 7, 2, 7, 1, 99.231458),
    Sketcher.Constraint("DistanceY", -1, 1, 2, 3, 69.339461),
])
pad4 = body.newObject("PartDesign::Pad", "Pad003")
pad4.Profile = sketch8
pad4.Length = 1.4
pad4.Reversed = True

# Sketch on XY plane
sketch9 = body.newObject("Sketcher::SketchObject", "Sketch008")
sketch9.AttachmentSupport = (doc.getObject("XY_Plane"), [""])
sketch9.MapMode = "FlatFace"
sketch9.AttachmentOffset = App.Placement(App.Vector(0, 0, -59.660539), App.Rotation())
add_polygon(sketch9, [(49, 82), (-50, 82), (-50, 88), (49, 88)])  # lines 0-3
sketch9.addConstraint([
    Sketcher.Constraint("Horizontal", 0),
    Sketcher.Constraint("Vertical", 1),
    Sketcher.Constraint("Horizontal", 2),
    Sketcher.Constraint("Vertical", 3),
    Sketcher.Constraint("DistanceY", 1, 1, 1, 2, 6.74),
    Sketcher.Constraint("DistanceY", -1, 1, 1, 2, 88.4),
    Sketcher.Constraint("DistanceX", 0, 2, 0, 1, 99.231458),
    Sketcher.Constraint("DistanceX", -1, 1, 2, 2, 49.172052),
])
pad5 = body.newObject("PartDesign::Pad", "Pad004")
pad5.Profile = sketch9
pad5.Length = 1.4
pad5.Reversed = True

# Sketch on XZ plane
sketch10 = body.newObject("Sketcher::SketchObject", "Sketch009")
sketch10.AttachmentSupport = (doc.getObject("XZ_Plane"), [""])
sketch10.MapMode = "FlatFace"
sketch10.AttachmentOffset = App.Placement(App.Vector(0, 0, -88.4), App.Rotation())
sketch10.addGeometry([
    Part.LineSegment(App.Vector(71.9, -64.6, 0), App.Vector(49.2, -73.5, 0)),  # 0
    Part.LineSegment(App.Vector(49.2, -73.5, 0), App.Vector(49.2, -72.7, 0)),  # 1
    Part.LineSegment(App.Vector(49.2, -72.7, 0), App.Vector(71.6, -63.8, 0)),  # 2
    Part.ArcOfCircle(Part.Circle(App.Vector(67.5, -53.2, 0), App.Vector(0, 0, 1), 11.4), math.radians(-69), math.radians(0)),  # 3
    Part.LineSegment(App.Vector(78.9, -53.2, 0), App.Vector(78.9, 69.3, 0)),  # 4
    Part.ArcOfCircle(Part.Circle(App.Vector(74.1, 69.3, 0), App.Vector(0, 0, 1), 4.8), math.radians(0), math.radians(90)),  # 5
    Part.LineSegment(App.Vector(74.1, 74.1, 0), App.Vector(74.1, 74.9, 0)),  # 6
    Part.ArcOfCircle(Part.Circle(App.Vector(74.1, 69.3, 0), App.Vector(0, 0, 1), 5.6), math.radians(0), math.radians(90)),  # 7
    Part.LineSegment(App.Vector(79.7, 69.3, 0), App.Vector(79.7, -53.2, 0)),  # 8
    Part.ArcOfCircle(Part.Circle(App.Vector(67.5, -53.2, 0), App.Vector(0, 0, 1), 12.2), math.radians(-69), math.radians(0)),  # 9
    Part.LineSegment(App.Vector(-50.1, -72.7, 0), App.Vector(-50.1, -73.5, 0)),  # 10
    Part.LineSegment(App.Vector(-50.1, -73.5, 0), App.Vector(-72.8, -64.6, 0)),  # 11
    Part.ArcOfCircle(Part.Circle(App.Vector(-68.3, -53.2, 0), App.Vector(0, 0, 1), 12.2), math.radians(180), math.radians(249)),  # 12
    Part.LineSegment(App.Vector(-80.5, -53.2, 0), App.Vector(-80.5, 69.3, 0)),  # 13
    Part.ArcOfCircle(Part.Circle(App.Vector(-74.9, 69.3, 0), App.Vector(0, 0, 1), 5.6), math.radians(90), math.radians(180)),  # 14
    Part.LineSegment(App.Vector(-74.9, 74.9, 0), App.Vector(-74.9, 74.1, 0)),  # 15
    Part.ArcOfCircle(Part.Circle(App.Vector(-74.9, 69.3, 0), App.Vector(0, 0, 1), 4.8), math.radians(90), math.radians(180)),  # 16
    Part.LineSegment(App.Vector(-79.7, 69.3, 0), App.Vector(-79.7, -53.2, 0)),  # 17
    Part.ArcOfCircle(Part.Circle(App.Vector(-68.3, -53.2, 0), App.Vector(0, 0, 1), 11.4), math.radians(-180), math.radians(-111)),  # 18
    Part.LineSegment(App.Vector(-72.5, -63.8, 0), App.Vector(-50.1, -72.7, 0)),  # 19
], False)
sketch10.addConstraint([
    Sketcher.Constraint("Coincident", 0, 2, 1, 1),
    Sketcher.Constraint("Coincident", 1, 2, 2, 1),
    Sketcher.Constraint("Tangent", 2, 2, 3, 1),
    Sketcher.Constraint("Tangent", 3, 2, 4, 1),
    Sketcher.Constraint("Tangent", 4, 2, 5, 1),
    Sketcher.Constraint("Coincident", 5, 2, 6, 1),
    Sketcher.Constraint("Coincident", 6, 2, 7, 2),
    Sketcher.Constraint("Tangent", 7, 1, 8, 1),
    Sketcher.Constraint("Tangent", 8, 2, 9, 2),
    Sketcher.Constraint("Tangent", 9, 1, 0, 1),
    Sketcher.Constraint("Coincident", 10, 2, 11, 1),
    Sketcher.Constraint("Tangent", 11, 2, 12, 2),
    Sketcher.Constraint("Tangent", 12, 1, 13, 1),
    Sketcher.Constraint("Tangent", 13, 2, 14, 2),
    Sketcher.Constraint("Coincident", 14, 1, 15, 1),
    Sketcher.Constraint("Coincident", 15, 2, 16, 1),
    Sketcher.Constraint("Tangent", 16, 2, 17, 1),
    Sketcher.Constraint("Tangent", 17, 2, 18, 1),
    Sketcher.Constraint("Tangent", 18, 2, 19, 1),
    Sketcher.Constraint("Coincident", 19, 2, 10, 1),
    Sketcher.Constraint("Vertical", 1),
    Sketcher.Constraint("Vertical", 4),
    Sketcher.Constraint("Vertical", 6),
    Sketcher.Constraint("Vertical", 8),
    Sketcher.Constraint("Vertical", 10),
    Sketcher.Constraint("Vertical", 13),
    Sketcher.Constraint("Vertical", 15),
    Sketcher.Constraint("Vertical", 17),
    Sketcher.Constraint("Coincident", 7, 3, 5, 3),
    Sketcher.Constraint("Coincident", 9, 3, 3, 3),
    Sketcher.Constraint("Coincident", 16, 3, 14, 3),
    Sketcher.Constraint("Coincident", 18, 3, 12, 3),
    Sketcher.Constraint("Equal", 9, 12),
    Sketcher.Constraint("Equal", 7, 14),
    Sketcher.Constraint("Equal", 5, 16),
    Sketcher.Constraint("Parallel", 0, 2),
    Sketcher.Constraint("Parallel", 11, 19),
    Sketcher.Constraint("Horizontal", 9, 3, 12, 3),
    Sketcher.Constraint("Horizontal", 7, 3, 14, 3),
    Sketcher.Constraint("Horizontal", 0, 2, 10, 2),
    Sketcher.Constraint("Horizontal", 9, 1, 11, 2),
    Sketcher.Constraint("Vertical", 7, 3, 5, 2),
    Sketcher.Constraint("Vertical", 16, 3, 14, 1),
    Sketcher.Constraint("Radius", 3, 11.4),
    Sketcher.Constraint("Radius", 5, 4.8),
    Sketcher.Constraint("Radius", 7, 5.6),
    Sketcher.Constraint("DistanceX", 14, 3, 5, 3, 149.0),
    Sketcher.Constraint("DistanceY", 4, 1, 4, 2, 122.5525),
    Sketcher.Constraint("DistanceX", -1, 1, 2, 2, 71.6314),
    Sketcher.Constraint("DistanceY", 1, 2, 9, 3, 19.4475),
    Sketcher.Constraint("Distance", 0, 24.45114),
    Sketcher.Constraint("DistanceY", 3, 3, -1, 1, 53.213039),
])
pad6 = body.newObject("PartDesign::Pad", "Pad005")
pad6.Profile = sketch10
pad6.Length = 88.4

# Sketch on XZ plane
sketch11 = body.newObject("Sketcher::SketchObject", "Sketch010")
sketch11.AttachmentSupport = (doc.getObject("XZ_Plane"), [""])
sketch11.MapMode = "FlatFace"
sketch11.AttachmentOffset = App.Placement(App.Vector(0, 0, -87), App.Rotation())
sketch11.addGeometry([
    Part.LineSegment(App.Vector(-51.5, -59.7, 0), App.Vector(50.6, -59.7, 0)),  # 0
    Part.LineSegment(App.Vector(50.6, -59.7, 0), App.Vector(50.6, -70.6, 0)),  # 1
    Part.LineSegment(App.Vector(50.6, -70.6, 0), App.Vector(71.1, -62.5, 0)),  # 2
    Part.ArcOfCircle(Part.Circle(App.Vector(67.5, -53.2, 0), App.Vector(0, 0, 1), 10), math.radians(-69), math.radians(0)),  # 3
    Part.LineSegment(App.Vector(77.5, -53.2, 0), App.Vector(77.5, 69.3, 0)),  # 4
    Part.ArcOfCircle(Part.Circle(App.Vector(74.1, 69.3, 0), App.Vector(0, 0, 1), 3.4), math.radians(0), math.radians(90)),  # 5
    Part.LineSegment(App.Vector(74.1, 72.7, 0), App.Vector(-74.9, 72.7, 0)),  # 6
    Part.ArcOfCircle(Part.Circle(App.Vector(-74.9, 69.3, 0), App.Vector(0, 0, 1), 3.4), math.radians(90), math.radians(180)),  # 7
    Part.LineSegment(App.Vector(-78.3, 69.3, 0), App.Vector(-78.3, -53.2, 0)),  # 8
    Part.ArcOfCircle(Part.Circle(App.Vector(-68.3, -53.2, 0), App.Vector(0, 0, 1), 10), math.radians(-180), math.radians(-111)),  # 9
    Part.LineSegment(App.Vector(-72, -62.5, 0), App.Vector(-51.5, -70.6, 0)),  # 10
    Part.LineSegment(App.Vector(-51.5, -70.6, 0), App.Vector(-51.5, -59.7, 0)),  # 11
], False)
sketch11.addConstraint([
    Sketcher.Constraint("Coincident", 0, 2, 1, 1),
    Sketcher.Constraint("Coincident", 1, 2, 2, 1),
    Sketcher.Constraint("Tangent", 2, 2, 3, 1),
    Sketcher.Constraint("Tangent", 3, 2, 4, 1),
    Sketcher.Constraint("Tangent", 4, 2, 5, 1),
    Sketcher.Constraint("Tangent", 5, 2, 6, 1),
    Sketcher.Constraint("Tangent", 6, 2, 7, 1),
    Sketcher.Constraint("Tangent", 7, 2, 8, 1),
    Sketcher.Constraint("Tangent", 8, 2, 9, 1),
    Sketcher.Constraint("Tangent", 9, 2, 10, 1),
    Sketcher.Constraint("Coincident", 10, 2, 11, 1),
    Sketcher.Constraint("Coincident", 11, 2, 0, 1),
    Sketcher.Constraint("Horizontal", 0),
    Sketcher.Constraint("Vertical", 1),
    Sketcher.Constraint("Vertical", 4),
    Sketcher.Constraint("Horizontal", 6),
    Sketcher.Constraint("Vertical", 8),
    Sketcher.Constraint("Vertical", 11),
    Sketcher.Constraint("Equal", 5, 7),
    Sketcher.Constraint("Equal", 3, 9),
    Sketcher.Constraint("Horizontal", 3, 3, 9, 3),
    Sketcher.Constraint("Horizontal", 2, 2, 9, 2),
    Sketcher.Constraint("Horizontal", 1, 2, 10, 2),
    Sketcher.Constraint("Radius", 3, 10.0),
    Sketcher.Constraint("Radius", 5, 3.4),
    Sketcher.Constraint("DistanceX", 6, 2, 6, 1, 149.0),
    Sketcher.Constraint("DistanceY", 0, 2, 5, 3, 129.0),
    Sketcher.Constraint("DistanceY", 4, 1, 4, 2, 122.5525),
    Sketcher.Constraint("DistanceX", 0, 1, 0, 2, 102.031458),
    Sketcher.Constraint("DistanceY", 1, 2, 1, 1, 10.944457),
    Sketcher.Constraint("DistanceY", 3, 3, -1, 1, 53.213039),
    Sketcher.Constraint("DistanceX", -1, 1, 0, 2, 50.572052),
])
pad7 = body.newObject("PartDesign::Pad", "Pad006")
pad7.Profile = sketch11
pad7.Length = 0.8

# Sketch on YZ plane
sketch12 = body.newObject("Sketcher::SketchObject", "Sketch011")
sketch12.AttachmentSupport = (doc.getObject("YZ_Plane"), [""])
sketch12.MapMode = "FlatFace"
sketch12.AttachmentOffset = App.Placement(App.Vector(0, 0, -51.459406), App.Rotation())
add_polygon(sketch12, [(86, -71), (0, -71), (0, -60), (86, -60)])  # lines 0-3
sketch12.addConstraint([
    Sketcher.Constraint("Horizontal", 0),
    Sketcher.Constraint("Vertical", 1),
    Sketcher.Constraint("Horizontal", 2),
    Sketcher.Constraint("Vertical", 3),
    Sketcher.Constraint("PointOnObject", 0, 2, -2),
    Sketcher.Constraint("DistanceX", 0, 2, 0, 1, 86.2),
    Sketcher.Constraint("DistanceY", 1, 1, 1, 2, 10.944457),
    Sketcher.Constraint("DistanceY", 1, 2, -1, 1, 59.660539),
])
pad8 = body.newObject("PartDesign::Pad", "Pad007")
pad8.Profile = sketch12
pad8.Length = 0.8
pad8.Reversed = True

doc.recompute()
